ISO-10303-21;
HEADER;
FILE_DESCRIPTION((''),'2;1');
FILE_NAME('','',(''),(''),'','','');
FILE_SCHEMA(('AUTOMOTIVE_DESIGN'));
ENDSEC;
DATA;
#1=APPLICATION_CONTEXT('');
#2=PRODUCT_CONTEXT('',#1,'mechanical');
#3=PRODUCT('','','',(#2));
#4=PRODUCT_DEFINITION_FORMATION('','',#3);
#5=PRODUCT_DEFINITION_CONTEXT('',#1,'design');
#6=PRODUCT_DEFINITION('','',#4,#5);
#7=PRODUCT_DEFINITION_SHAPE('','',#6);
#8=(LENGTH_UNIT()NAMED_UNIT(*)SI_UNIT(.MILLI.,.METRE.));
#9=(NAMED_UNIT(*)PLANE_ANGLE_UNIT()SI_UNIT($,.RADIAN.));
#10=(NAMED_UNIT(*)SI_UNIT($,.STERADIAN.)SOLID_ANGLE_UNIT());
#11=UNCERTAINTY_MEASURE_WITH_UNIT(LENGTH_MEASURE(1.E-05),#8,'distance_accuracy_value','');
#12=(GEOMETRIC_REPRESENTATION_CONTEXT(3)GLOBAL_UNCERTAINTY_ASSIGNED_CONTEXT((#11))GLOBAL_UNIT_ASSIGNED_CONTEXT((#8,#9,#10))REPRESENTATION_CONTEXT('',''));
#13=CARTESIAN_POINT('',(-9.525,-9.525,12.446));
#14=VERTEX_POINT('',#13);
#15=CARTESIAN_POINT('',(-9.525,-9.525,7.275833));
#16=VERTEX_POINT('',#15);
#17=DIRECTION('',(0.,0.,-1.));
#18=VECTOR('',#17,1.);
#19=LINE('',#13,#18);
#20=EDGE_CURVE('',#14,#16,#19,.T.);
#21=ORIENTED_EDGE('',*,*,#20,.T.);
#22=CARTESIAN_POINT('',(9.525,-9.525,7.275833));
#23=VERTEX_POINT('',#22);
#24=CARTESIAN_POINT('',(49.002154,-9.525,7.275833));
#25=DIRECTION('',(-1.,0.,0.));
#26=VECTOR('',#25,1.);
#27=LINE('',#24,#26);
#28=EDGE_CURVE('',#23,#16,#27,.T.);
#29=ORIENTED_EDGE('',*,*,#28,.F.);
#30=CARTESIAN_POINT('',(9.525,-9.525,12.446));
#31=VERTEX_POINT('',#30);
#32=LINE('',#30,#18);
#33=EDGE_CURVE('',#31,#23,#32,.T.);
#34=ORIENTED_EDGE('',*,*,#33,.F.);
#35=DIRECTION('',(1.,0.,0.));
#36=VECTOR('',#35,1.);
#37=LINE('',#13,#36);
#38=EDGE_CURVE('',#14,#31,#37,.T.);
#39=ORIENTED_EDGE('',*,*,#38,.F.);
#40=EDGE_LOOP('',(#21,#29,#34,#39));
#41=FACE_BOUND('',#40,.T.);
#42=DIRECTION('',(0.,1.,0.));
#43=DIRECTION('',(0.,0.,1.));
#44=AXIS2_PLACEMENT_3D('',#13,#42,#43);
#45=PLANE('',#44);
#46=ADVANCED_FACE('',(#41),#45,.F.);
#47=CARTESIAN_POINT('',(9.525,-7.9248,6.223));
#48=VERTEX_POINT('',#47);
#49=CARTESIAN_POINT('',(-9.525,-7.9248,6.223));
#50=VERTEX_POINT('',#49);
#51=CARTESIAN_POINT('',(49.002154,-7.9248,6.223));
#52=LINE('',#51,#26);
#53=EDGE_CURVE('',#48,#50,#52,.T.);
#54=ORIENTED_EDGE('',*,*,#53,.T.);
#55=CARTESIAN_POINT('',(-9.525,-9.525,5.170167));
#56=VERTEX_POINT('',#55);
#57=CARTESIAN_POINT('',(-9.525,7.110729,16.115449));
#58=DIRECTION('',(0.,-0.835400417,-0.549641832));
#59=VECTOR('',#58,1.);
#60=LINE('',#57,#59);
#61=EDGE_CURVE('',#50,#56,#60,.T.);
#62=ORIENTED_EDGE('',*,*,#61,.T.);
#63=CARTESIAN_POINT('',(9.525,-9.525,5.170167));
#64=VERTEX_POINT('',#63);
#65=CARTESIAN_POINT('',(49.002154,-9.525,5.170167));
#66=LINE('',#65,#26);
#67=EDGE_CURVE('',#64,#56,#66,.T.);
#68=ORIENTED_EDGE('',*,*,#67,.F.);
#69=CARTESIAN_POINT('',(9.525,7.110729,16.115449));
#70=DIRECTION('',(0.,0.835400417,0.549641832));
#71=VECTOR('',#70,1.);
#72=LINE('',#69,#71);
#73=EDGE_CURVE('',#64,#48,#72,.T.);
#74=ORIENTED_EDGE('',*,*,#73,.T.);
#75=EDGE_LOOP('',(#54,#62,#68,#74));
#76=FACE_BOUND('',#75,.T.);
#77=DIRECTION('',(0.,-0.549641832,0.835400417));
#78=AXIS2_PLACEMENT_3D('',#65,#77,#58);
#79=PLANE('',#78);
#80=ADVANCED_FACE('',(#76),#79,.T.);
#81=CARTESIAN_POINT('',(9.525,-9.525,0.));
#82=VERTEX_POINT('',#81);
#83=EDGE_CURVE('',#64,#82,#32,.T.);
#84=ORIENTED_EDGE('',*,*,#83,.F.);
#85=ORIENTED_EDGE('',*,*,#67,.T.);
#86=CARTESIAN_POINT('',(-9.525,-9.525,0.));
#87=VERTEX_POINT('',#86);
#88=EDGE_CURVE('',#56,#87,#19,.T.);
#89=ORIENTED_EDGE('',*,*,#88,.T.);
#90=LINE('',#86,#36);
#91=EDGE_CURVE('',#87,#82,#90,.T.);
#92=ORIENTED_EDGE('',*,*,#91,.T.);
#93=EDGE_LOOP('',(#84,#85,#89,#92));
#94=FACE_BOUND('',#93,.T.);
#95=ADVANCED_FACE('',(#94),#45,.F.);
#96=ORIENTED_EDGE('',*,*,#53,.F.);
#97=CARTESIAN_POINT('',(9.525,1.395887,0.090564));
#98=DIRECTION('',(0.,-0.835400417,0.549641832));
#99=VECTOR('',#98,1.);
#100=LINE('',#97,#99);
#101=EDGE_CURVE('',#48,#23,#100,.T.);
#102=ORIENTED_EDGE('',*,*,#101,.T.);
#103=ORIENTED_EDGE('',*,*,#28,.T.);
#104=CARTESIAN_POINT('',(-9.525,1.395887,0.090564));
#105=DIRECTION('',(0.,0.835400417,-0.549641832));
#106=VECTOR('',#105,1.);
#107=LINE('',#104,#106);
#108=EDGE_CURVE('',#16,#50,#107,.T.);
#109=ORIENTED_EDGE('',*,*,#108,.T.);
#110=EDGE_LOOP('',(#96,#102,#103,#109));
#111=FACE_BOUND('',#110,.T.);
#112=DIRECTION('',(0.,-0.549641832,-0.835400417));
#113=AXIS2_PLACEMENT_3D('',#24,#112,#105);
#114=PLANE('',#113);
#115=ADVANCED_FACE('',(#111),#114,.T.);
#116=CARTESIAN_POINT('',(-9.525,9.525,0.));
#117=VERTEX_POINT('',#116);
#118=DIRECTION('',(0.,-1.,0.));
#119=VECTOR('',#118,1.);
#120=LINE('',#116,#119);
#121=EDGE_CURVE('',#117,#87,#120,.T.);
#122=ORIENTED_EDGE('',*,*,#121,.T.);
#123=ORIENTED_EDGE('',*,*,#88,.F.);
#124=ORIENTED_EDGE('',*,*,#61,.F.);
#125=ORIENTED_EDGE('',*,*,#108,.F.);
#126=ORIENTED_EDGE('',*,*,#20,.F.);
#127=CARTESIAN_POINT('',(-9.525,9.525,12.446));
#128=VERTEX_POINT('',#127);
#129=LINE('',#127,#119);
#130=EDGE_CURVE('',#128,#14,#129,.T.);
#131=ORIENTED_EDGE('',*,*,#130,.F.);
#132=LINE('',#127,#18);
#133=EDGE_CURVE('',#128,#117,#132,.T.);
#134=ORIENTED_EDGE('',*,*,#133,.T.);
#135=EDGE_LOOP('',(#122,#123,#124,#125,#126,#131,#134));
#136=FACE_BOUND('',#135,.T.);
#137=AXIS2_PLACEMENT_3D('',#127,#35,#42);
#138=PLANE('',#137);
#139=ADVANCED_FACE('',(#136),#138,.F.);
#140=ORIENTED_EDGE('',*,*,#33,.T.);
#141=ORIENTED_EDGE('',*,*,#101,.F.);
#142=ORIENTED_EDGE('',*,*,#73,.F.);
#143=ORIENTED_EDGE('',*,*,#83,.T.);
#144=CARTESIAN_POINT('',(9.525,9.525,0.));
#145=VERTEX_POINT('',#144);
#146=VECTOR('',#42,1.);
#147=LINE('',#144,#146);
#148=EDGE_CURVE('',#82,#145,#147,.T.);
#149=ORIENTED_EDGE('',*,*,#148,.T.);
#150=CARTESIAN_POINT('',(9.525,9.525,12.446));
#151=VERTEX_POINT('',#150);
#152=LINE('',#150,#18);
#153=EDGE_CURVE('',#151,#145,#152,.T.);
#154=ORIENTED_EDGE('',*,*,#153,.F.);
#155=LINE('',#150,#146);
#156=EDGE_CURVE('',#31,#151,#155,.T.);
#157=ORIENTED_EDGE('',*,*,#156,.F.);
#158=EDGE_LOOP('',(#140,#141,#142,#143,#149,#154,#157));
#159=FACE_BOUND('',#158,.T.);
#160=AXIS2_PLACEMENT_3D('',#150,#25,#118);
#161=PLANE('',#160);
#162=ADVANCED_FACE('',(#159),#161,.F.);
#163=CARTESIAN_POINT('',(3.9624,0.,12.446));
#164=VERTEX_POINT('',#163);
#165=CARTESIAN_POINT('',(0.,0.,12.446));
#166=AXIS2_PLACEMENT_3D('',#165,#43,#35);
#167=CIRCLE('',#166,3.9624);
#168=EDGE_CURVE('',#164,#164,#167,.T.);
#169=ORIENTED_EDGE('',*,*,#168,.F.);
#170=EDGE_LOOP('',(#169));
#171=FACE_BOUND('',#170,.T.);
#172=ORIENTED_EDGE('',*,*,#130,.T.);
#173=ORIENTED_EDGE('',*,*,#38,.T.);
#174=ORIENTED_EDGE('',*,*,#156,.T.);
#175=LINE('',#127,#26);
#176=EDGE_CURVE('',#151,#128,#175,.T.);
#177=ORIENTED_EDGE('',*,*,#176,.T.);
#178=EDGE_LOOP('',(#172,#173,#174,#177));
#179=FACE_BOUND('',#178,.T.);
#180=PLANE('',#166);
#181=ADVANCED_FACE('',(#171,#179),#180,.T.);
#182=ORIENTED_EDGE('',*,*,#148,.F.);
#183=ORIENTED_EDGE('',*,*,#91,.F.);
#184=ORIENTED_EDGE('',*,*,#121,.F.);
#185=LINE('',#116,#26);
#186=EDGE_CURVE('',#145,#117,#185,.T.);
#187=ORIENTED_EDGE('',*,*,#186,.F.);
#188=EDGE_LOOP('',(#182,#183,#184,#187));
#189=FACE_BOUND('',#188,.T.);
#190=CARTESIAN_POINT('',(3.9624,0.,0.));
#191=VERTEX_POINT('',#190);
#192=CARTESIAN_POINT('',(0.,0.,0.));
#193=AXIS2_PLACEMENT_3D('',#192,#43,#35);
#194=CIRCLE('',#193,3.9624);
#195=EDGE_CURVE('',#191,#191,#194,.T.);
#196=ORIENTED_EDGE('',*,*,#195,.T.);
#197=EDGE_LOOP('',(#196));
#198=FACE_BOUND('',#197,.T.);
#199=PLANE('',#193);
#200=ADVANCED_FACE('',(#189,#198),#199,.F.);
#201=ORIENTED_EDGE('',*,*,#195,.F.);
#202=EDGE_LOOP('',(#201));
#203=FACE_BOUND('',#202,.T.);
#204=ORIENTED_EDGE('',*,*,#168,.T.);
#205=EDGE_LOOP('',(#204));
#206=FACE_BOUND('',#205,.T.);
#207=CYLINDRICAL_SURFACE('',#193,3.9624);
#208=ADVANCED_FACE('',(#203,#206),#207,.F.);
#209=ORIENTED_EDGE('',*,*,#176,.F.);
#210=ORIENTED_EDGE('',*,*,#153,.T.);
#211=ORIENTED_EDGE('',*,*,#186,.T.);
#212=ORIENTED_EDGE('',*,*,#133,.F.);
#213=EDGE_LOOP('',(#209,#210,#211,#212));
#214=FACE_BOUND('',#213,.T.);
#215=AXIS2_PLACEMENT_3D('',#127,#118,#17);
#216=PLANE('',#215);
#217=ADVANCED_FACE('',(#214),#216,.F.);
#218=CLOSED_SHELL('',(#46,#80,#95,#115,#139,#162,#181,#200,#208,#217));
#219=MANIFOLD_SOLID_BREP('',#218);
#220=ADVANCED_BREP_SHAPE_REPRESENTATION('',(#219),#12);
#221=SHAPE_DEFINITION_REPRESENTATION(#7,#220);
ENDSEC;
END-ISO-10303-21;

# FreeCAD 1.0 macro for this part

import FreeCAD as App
import Part
import Sketcher
from FreeCAD import Vector
Q = App.Units.Quantity

doc = App.newDocument("Part")
body = doc.addObject("PartDesign::Body", "Body")

# Sketch on XY plane
sketch1 = doc.addObject("Sketcher::SketchObject", "Sketch")
body.addObject(sketch1)
sketch1.AttachmentSupport = (doc.XY_Plane, [""])
sketch1.MapMode = "FlatFace"
sketch1.addGeometry([
    Part.LineSegment(Vector(-10, 10, 0), Vector(-10, -10, 0)),
    Part.LineSegment(Vector(-10, -10, 0), Vector(10, -10, 0)),
    Part.LineSegment(Vector(10, -10, 0), Vector(10, 10, 0)),
    Part.LineSegment(Vector(10, 10, 0), Vector(-10, 10, 0)),
], False)
sketch1.addConstraint([
    Sketcher.Constraint("Coincident", 0, 2, 1, 1),
    Sketcher.Constraint("Coincident", 1, 2, 2, 1),
    Sketcher.Constraint("Coincident", 2, 2, 3, 1),
    Sketcher.Constraint("Coincident", 3, 2, 0, 1),
    Sketcher.Constraint("Vertical", 0),
    Sketcher.Constraint("Horizontal", 1),
    Sketcher.Constraint("Vertical", 2),
    Sketcher.Constraint("Horizontal", 3),
    Sketcher.Constraint("Symmetric", 0, 2, 2, 2, -1, 1),
    Sketcher.Constraint("Equal", 3, 0),
    Sketcher.Constraint("DistanceX", 1, 1, 1, 2, Q("0.75 in")),
])
pad1 = doc.addObject("PartDesign::Pad", "Pad")
body.addObject(pad1)
pad1.Profile = sketch1
pad1.Length = Q("0.49 in")

# Sketch on XY plane
sketch2 = doc.addObject("Sketcher::SketchObject", "Sketch001")
body.addObject(sketch2)
sketch2.AttachmentSupport = (doc.XY_Plane, [""])
sketch2.MapMode = "FlatFace"
sketch2.AttachmentOffset = App.Placement(Vector(0, 0, 0.49 * 25.4), App.Rotation())
sketch2.addGeometry(Part.Circle(Vector(0, 0, 0), Vector(0, 0, 1), 4), False)
sketch2.addConstraint([
    Sketcher.Constraint("Coincident", 0, 3, -1, 1),
    Sketcher.Constraint("Diameter", 0, Q("0.312 in")),
])
pocket1 = doc.addObject("PartDesign::Pocket", "Pocket")
body.addObject(pocket1)
pocket1.Profile = sketch2
pocket1.Type = "ThroughAll"

# Sketch on YZ plane
sketch3 = doc.addObject("Sketcher::SketchObject", "Sketch002")
body.addObject(sketch3)
sketch3.AttachmentSupport = (doc.YZ_Plane, [""])
sketch3.MapMode = "FlatFace"
sketch3.addGeometry([
    Part.LineSegment(Vector(-9.525, 7.275833, 0), Vector(-51.950244, 35.189021, 0)),  # 0
    Part.LineSegment(Vector(-51.950244, 35.189021, 0), Vector(-153.518889, 35.189021, 0)),  # 1
    Part.LineSegment(Vector(-153.518889, 35.189021, 0), Vector(-153.518889, -22.743021, 0)),  # 2
    Part.LineSegment(Vector(-153.518889, -22.743021, 0), Vector(-51.950244, -22.743021, 0)),  # 3
    Part.LineSegment(Vector(-51.950244, -22.743021, 0), Vector(-9.525, 5.170167, 0)),  # 4
    Part.LineSegment(Vector(-9.525, 5.170167, 0), Vector(-7.9248, 6.223, 0)),  # 5
    Part.LineSegment(Vector(-7.9248, 6.223, 0), Vector(-9.525, 7.275833, 0)),  # 6
], False)
sketch3.addConstraint([
    Sketcher.Constraint("Coincident", 0, 2, 1, 1),
    Sketcher.Constraint("Coincident", 1, 2, 2, 1),
    Sketcher.Constraint("Coincident", 2, 2, 3, 1),
    Sketcher.Constraint("Coincident", 3, 2, 4, 1),
    Sketcher.Constraint("Coincident", 4, 2, 5, 1),
    Sketcher.Constraint("Coincident", 5, 2, 6, 1),
    Sketcher.Constraint("Coincident", 6, 2, 0, 1),
    Sketcher.Constraint("Horizontal", 1),
    Sketcher.Constraint("Vertical", 2),
    Sketcher.Constraint("Horizontal", 3),
    Sketcher.Constraint("Parallel", 4, 5),
    Sketcher.Constraint("Parallel", 0, 6),
    Sketcher.Constraint("Vertical", 0, 2, 3, 2),
    Sketcher.Constraint("Vertical", 4, 2, 6, 2),
    Sketcher.Constraint("Equal", 0, 4),
    Sketcher.Constraint("DistanceX", 4, 2, -1, 1, Q("0.375 in")),
    Sketcher.Constraint("DistanceX", 5, 2, -1, 1, Q("0.312 in")),
    Sketcher.Constraint("DistanceY", -1, 1, 5, 2, Q("0.245 in")),
    Sketcher.Constraint("DistanceY", 2, 2, 2, 1, 57.932042),
    Sketcher.Constraint("Distance", 5, 1.915489),
    Sketcher.Constraint("DistanceX", 1, 2, 1, 1, 101.568645),
])
pocket2 = doc.addObject("PartDesign::Pocket", "Pocket001")
body.addObject(pocket2)
pocket2.Profile = sketch3
pocket2.Type = "ThroughAll"
pocket2.Midplane = True

doc.recompute()
